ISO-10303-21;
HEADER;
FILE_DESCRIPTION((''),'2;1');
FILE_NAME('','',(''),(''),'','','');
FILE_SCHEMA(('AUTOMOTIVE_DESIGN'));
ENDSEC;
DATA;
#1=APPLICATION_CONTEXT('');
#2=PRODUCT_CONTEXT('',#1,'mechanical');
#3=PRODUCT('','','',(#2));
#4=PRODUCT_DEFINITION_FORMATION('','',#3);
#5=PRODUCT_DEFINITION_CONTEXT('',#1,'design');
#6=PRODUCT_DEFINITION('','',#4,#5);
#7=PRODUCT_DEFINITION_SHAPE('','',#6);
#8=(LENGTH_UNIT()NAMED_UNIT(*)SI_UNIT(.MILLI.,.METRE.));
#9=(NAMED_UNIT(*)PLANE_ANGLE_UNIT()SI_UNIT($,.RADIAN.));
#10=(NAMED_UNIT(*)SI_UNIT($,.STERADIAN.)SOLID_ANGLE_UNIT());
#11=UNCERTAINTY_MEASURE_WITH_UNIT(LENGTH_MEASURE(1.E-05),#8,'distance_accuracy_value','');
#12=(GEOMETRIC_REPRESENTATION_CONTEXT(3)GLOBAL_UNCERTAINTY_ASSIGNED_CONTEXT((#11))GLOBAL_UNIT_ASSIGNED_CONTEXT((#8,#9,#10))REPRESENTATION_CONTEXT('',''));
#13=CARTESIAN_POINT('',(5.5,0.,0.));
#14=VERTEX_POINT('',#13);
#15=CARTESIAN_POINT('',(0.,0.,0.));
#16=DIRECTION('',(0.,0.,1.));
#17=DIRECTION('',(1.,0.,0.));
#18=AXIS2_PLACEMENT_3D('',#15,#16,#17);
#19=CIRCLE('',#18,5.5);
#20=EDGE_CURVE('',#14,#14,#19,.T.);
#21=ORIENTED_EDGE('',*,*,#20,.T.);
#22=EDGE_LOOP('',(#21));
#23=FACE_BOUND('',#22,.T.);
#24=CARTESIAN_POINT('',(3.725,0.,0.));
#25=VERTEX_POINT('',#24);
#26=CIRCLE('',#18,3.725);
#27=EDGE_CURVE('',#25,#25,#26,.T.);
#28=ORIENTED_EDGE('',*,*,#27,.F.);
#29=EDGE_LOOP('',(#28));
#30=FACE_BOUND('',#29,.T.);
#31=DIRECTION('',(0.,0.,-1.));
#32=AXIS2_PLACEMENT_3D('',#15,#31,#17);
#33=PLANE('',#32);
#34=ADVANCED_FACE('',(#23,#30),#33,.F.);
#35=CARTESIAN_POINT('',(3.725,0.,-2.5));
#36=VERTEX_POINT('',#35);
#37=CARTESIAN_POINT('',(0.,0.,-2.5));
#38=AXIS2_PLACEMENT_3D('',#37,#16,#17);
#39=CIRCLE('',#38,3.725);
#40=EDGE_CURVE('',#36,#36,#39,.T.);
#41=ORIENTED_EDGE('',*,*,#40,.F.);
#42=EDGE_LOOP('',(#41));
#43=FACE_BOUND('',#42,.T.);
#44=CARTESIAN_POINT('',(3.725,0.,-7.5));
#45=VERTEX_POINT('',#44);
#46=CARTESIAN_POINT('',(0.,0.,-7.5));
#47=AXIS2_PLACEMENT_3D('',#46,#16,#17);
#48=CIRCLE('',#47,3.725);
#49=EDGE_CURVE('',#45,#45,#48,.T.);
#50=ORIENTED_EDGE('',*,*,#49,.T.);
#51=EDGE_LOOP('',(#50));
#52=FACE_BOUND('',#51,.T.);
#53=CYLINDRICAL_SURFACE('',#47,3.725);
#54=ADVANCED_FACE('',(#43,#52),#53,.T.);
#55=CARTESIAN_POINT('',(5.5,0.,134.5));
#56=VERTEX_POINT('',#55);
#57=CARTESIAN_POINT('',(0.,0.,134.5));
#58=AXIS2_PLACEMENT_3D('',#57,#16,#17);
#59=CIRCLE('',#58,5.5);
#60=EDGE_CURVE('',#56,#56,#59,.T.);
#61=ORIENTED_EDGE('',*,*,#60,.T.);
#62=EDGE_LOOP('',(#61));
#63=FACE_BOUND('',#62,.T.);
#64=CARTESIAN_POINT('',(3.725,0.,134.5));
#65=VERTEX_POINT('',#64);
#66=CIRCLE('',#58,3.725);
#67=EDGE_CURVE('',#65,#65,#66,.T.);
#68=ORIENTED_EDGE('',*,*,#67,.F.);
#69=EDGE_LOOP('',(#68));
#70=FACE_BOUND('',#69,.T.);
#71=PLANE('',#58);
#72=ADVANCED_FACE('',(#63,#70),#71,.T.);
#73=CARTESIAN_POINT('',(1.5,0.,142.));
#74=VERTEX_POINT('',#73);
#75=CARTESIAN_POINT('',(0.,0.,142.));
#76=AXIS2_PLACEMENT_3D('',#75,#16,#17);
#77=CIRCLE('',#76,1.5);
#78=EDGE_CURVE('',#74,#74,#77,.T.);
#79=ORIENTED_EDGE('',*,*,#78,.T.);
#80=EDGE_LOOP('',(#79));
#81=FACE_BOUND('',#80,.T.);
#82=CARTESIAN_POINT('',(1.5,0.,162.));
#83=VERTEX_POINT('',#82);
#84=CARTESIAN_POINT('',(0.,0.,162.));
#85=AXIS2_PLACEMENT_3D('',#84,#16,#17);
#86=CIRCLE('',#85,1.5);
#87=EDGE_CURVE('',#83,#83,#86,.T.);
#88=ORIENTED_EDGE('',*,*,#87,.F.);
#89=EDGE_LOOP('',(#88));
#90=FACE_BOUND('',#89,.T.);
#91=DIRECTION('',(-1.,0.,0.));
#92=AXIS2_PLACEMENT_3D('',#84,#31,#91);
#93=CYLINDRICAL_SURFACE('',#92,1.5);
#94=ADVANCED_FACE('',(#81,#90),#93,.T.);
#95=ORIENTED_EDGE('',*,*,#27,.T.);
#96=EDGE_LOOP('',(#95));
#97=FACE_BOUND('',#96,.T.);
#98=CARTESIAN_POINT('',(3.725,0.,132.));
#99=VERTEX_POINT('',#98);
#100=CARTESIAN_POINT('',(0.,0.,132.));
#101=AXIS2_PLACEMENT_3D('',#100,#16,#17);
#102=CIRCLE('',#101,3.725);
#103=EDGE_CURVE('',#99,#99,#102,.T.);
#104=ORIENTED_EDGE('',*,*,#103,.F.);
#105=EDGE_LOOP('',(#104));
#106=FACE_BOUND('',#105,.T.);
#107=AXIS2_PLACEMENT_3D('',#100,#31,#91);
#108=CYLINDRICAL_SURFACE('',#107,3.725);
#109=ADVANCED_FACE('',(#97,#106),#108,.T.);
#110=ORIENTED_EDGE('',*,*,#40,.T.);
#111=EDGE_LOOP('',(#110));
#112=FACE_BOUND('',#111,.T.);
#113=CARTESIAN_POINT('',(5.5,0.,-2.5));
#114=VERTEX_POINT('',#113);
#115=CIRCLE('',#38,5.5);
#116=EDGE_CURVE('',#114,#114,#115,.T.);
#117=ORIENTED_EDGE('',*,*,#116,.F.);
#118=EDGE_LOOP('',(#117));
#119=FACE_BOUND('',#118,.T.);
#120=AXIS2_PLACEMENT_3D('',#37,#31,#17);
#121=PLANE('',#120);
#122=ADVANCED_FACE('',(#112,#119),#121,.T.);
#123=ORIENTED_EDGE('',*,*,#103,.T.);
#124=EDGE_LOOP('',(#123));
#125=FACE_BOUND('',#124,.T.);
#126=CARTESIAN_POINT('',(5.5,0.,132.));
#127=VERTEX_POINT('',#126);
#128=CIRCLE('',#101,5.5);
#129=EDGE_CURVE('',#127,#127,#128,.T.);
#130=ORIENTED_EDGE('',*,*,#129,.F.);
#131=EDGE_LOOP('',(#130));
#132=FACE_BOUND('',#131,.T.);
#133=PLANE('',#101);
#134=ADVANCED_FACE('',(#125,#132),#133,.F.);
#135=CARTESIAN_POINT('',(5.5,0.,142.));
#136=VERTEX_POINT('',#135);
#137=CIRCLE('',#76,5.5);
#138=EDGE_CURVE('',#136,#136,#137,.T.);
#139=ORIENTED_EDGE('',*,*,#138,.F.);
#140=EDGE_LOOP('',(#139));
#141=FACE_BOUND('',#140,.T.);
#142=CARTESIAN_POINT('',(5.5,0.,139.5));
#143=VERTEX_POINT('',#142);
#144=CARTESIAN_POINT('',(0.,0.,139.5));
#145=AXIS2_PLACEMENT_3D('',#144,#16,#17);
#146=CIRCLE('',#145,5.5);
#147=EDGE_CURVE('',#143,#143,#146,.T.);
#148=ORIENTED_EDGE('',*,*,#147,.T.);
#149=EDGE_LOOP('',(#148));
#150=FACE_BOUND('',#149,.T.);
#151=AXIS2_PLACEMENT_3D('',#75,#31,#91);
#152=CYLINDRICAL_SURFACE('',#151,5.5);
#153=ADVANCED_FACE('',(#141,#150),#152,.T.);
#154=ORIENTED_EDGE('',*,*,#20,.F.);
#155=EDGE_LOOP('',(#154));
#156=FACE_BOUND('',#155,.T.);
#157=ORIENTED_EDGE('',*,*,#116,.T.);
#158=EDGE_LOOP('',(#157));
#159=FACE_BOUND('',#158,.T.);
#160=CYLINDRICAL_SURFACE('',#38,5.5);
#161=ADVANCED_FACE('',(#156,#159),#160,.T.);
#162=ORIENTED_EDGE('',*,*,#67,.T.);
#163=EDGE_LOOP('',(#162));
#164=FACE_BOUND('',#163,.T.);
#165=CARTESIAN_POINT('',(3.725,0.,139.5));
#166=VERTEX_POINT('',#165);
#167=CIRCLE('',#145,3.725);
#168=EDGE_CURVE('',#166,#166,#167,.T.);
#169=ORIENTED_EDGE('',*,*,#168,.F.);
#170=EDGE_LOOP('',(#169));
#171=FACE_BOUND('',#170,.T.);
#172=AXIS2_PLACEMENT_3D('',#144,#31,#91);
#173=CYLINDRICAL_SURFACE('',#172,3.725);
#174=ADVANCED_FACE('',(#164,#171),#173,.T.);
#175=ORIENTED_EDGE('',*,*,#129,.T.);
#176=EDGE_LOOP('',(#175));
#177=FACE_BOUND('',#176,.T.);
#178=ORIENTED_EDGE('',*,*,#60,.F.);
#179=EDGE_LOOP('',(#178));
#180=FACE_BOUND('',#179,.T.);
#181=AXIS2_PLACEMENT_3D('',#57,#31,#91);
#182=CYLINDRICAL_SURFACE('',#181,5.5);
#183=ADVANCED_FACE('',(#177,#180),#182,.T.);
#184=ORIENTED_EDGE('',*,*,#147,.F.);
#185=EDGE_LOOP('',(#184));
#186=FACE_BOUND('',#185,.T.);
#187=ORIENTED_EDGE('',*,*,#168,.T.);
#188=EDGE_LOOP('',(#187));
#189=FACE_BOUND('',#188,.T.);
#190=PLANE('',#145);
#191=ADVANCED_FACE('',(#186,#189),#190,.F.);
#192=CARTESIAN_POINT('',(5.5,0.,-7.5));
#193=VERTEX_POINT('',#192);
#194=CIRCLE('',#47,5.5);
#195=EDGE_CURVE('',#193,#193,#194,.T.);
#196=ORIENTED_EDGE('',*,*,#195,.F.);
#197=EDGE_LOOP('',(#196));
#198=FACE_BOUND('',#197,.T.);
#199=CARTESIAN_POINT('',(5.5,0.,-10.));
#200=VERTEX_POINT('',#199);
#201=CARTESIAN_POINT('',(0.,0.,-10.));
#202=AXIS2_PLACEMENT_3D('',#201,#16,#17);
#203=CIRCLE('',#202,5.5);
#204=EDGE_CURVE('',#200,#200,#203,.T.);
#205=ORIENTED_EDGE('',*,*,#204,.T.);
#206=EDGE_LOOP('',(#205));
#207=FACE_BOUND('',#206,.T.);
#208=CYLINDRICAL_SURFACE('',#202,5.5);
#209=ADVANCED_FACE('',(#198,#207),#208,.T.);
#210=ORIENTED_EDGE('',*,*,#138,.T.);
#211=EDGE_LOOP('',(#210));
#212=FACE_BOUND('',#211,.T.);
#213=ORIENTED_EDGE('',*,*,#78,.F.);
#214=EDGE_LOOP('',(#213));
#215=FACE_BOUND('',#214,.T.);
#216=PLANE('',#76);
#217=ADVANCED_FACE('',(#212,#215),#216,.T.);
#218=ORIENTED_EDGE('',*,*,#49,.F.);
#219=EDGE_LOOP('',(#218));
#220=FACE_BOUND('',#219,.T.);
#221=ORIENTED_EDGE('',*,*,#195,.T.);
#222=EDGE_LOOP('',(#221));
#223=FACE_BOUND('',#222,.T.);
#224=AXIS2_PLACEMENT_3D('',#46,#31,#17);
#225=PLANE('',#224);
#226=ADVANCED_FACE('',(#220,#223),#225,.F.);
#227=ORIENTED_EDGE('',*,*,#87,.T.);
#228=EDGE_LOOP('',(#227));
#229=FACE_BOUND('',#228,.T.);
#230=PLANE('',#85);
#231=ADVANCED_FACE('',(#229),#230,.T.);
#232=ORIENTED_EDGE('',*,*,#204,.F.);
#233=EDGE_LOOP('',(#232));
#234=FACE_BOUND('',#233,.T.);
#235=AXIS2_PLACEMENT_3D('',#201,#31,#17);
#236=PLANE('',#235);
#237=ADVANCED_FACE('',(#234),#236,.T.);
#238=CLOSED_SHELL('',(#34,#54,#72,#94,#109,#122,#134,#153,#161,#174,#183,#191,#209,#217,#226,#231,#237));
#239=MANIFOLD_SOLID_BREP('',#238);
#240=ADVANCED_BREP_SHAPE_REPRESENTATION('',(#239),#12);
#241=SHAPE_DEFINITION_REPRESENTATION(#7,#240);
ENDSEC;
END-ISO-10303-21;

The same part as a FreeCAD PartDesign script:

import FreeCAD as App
import Part
import Sketcher
Q = App.Units.Quantity

doc = App.newDocument("Part")
params = doc.addObject("Spreadsheet::Sheet", "Params")
for row, (alias, value) in enumerate([
    ("sketch1_diameter", "7.45 mm"),
    ("pad1_length", "132 mm"),
    ("sketch2_diameter", "11 mm"),
    ("pad2_length", "2.5 mm"),
    ("sketch3_diameter", "7.45 mm"),
    ("pad3_length", "5 mm"),
    ("sketch4_diameter", "11 mm"),
    ("pad4_length", "2.5 mm"),
    ("sketch5_diameter", "3 mm"),
    ("pad5_length", "20 mm"),
], start=1):
    params.set(f"A{row}", alias)
    params.set(f"B{row}", "=" + value)
    params.setAlias(f"B{row}", alias)

body = doc.addObject("PartDesign::Body", "Body")

# Sketch on XY plane
sketch1 = body.newObject("Sketcher::SketchObject", "Sketch")
sketch1.AttachmentSupport = (doc.getObject("XY_Plane"), [""])
sketch1.MapMode = "FlatFace"
sketch1.addGeometry(Part.Circle(App.Vector(0, 0, 0), App.Vector(0, 0, 1), 3.725), False)
sketch1.addConstraint([
    Sketcher.Constraint("Coincident", 0, 3, -1, 1),
    Sketcher.Constraint("Diameter", 0, Q("7.45 mm")),
])
sketch1.setExpression("Constraints[1]", "Params.sketch1_diameter")
pad1 = body.newObject("PartDesign::Pad", "Pad")
pad1.Profile = sketch1
pad1.setExpression("Length", "Params.pad1_length")

# Sketch on XY plane
sketch2 = body.newObject("Sketcher::SketchObject", "Sketch001")
sketch2.AttachmentSupport = (doc.getObject("XY_Plane"), [""])
sketch2.MapMode = "FlatFace"
sketch2.AttachmentOffset = App.Placement(App.Vector(0, 0, 132), App.Rotation())
sketch2.addGeometry(Part.Circle(App.Vector(0, 0, 0), App.Vector(0, 0, 1), 5.5), False)
sketch2.addConstraint([
    Sketcher.Constraint("Coincident", 0, 3, -1, 1),
    Sketcher.Constraint("Diameter", 0, Q("11 mm")),
])
sketch2.setExpression("Constraints[1]", "Params.sketch2_diameter")
pad2 = body.newObject("PartDesign::Pad", "Pad001")
pad2.Profile = sketch2
pad2.setExpression("Length", "Params.pad2_length")

# Sketch on XY plane
sketch3 = body.newObject("Sketcher::SketchObject", "Sketch002")
sketch3.AttachmentSupport = (doc.getObject("XY_Plane"), [""])
sketch3.MapMode = "FlatFace"
sketch3.AttachmentOffset = App.Placement(App.Vector(0, 0, 134.5), App.Rotation())
sketch3.addGeometry(Part.Circle(App.Vector(0, 0, 0), App.Vector(0, 0, 1), 3.725), False)
sketch3.addConstraint([
    Sketcher.Constraint("Coincident", 0, 3, -1, 1),
    Sketcher.Constraint("Diameter", 0, Q("7.45 mm")),
])
sketch3.setExpression("Constraints[1]", "Params.sketch3_diameter")
pad3 = body.newObject("PartDesign::Pad", "Pad002")
pad3.Profile = sketch3
pad3.setExpression("Length", "Params.pad3_length")

# Sketch on XY plane
sketch4 = body.newObject("Sketcher::SketchObject", "Sketch003")
sketch4.AttachmentSupport = (doc.getObject("XY_Plane"), [""])
sketch4.MapMode = "FlatFace"
sketch4.AttachmentOffset = App.Placement(App.Vector(0, 0, 139.5), App.Rotation())
sketch4.addGeometry(Part.Circle(App.Vector(0, 0, 0), App.Vector(0, 0, 1), 5.5), False)
sketch4.addConstraint([
    Sketcher.Constraint("Coincident", 0, 3, -1, 1),
    Sketcher.Constraint("Diameter", 0, Q("11 mm")),
])
sketch4.setExpression("Constraints[1]", "Params.sketch4_diameter")
pad4 = body.newObject("PartDesign::Pad", "Pad003")
pad4.Profile = sketch4
pad4.setExpression("Length", "Params.pad4_length")
doc.recompute()

datumplane = body.newObject("PartDesign::Plane", "DatumPlane")
datumplane.AttachmentSupport = (doc.getObject("XY_Plane"), [""])
datumplane.MapMode = "FlatFace"
datumplane.AttachmentOffset = App.Placement(App.Vector(0, 0, 66), App.Rotation())
mirrored = body.newObject("PartDesign::Mirrored", "Mirrored")
mirrored.Originals = [pad2, pad3, pad4]
mirrored.MirrorPlane = (datumplane, [""])
body.Tip = mirrored

# Sketch on XY plane
sketch5 = body.newObject("Sketcher::SketchObject", "Sketch004")
sketch5.AttachmentSupport = (doc.getObject("XY_Plane"), [""])
sketch5.MapMode = "FlatFace"
sketch5.AttachmentOffset = App.Placement(App.Vector(0, 0, 142), App.Rotation())
sketch5.addGeometry(Part.Circle(App.Vector(0, 0, 0), App.Vector(0, 0, 1), 1.5), False)
sketch5.addConstraint([
    Sketcher.Constraint("Coincident", 0, 3, -1, 1),
    Sketcher.Constraint("Diameter", 0, Q("3 mm")),
])
sketch5.setExpression("Constraints[1]", "Params.sketch5_diameter")
pad5 = body.newObject("PartDesign::Pad", "Pad004")
pad5.Profile = sketch5
pad5.setExpression("Length", "Params.pad5_length")

doc.recompute()
